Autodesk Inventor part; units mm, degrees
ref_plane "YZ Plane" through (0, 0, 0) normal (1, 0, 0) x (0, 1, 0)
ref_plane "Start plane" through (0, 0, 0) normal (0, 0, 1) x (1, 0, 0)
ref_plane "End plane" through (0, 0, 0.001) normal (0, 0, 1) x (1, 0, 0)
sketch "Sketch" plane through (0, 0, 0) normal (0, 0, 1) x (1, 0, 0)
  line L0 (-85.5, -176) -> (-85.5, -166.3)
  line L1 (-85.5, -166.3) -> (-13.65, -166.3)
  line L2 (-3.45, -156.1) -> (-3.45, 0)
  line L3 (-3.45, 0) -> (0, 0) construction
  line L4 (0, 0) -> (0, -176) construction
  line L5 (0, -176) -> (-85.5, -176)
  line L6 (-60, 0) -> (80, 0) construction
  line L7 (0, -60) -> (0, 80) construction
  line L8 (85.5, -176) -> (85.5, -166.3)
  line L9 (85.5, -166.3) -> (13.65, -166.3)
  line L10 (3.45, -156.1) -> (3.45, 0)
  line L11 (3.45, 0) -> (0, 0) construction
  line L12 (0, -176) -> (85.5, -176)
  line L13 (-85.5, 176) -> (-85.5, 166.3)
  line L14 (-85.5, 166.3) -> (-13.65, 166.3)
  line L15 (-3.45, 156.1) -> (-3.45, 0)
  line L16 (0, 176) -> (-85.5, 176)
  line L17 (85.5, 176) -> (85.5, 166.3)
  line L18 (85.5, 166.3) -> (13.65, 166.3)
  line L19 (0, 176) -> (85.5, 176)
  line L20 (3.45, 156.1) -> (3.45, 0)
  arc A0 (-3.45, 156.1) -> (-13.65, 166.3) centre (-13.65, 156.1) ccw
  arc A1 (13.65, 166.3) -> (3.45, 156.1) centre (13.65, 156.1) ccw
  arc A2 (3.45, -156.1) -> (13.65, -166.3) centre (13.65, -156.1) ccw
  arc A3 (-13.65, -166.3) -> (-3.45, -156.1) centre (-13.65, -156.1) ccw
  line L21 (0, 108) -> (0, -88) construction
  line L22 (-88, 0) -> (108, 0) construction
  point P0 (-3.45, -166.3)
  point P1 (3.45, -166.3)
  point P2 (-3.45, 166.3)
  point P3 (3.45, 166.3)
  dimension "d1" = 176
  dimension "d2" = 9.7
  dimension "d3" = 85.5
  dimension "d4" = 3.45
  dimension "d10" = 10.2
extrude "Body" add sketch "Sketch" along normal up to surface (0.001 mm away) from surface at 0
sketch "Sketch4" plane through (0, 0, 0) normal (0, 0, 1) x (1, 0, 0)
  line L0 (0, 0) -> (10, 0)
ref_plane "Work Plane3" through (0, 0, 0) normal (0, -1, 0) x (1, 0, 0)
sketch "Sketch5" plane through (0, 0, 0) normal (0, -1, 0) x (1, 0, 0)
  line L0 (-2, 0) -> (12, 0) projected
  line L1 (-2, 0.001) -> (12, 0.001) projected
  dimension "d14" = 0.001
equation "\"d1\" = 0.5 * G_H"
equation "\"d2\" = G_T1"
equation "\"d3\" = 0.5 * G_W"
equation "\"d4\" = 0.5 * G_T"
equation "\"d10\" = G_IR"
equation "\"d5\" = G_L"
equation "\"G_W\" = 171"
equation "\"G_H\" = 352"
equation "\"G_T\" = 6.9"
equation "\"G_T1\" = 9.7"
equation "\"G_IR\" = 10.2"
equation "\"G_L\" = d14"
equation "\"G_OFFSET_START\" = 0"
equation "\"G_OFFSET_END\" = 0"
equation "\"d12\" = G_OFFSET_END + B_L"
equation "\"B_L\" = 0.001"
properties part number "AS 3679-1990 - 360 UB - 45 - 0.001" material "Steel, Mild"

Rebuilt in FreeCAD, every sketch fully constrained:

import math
import FreeCAD as App
import Part
import Sketcher

V = App.Vector

doc = App.newDocument("Part")
body = doc.addObject("PartDesign::Body", "Body")

# Sketch on XY plane
sketch1 = body.newObject("Sketcher::SketchObject", "Sketch")
sketch1.AttachmentSupport = (doc.getObject("XY_Plane"), [""])
sketch1.MapMode = "FlatFace"
sketch1.addGeometry(Part.LineSegment(V(-85.5, -166.3, 0), V(-85.5, -176, 0)), False)
sketch1.addGeometry(Part.LineSegment(V(-85.5, -176, 0), V(85.5, -176, 0)), False)
sketch1.addGeometry(Part.LineSegment(V(85.5, -176, 0), V(85.5, -166.3, 0)), False)
sketch1.addGeometry(Part.LineSegment(V(85.5, -166.3, 0), V(13.65, -166.3, 0)), False)
sketch1.addGeometry(Part.ArcOfCircle(Part.Circle(V(13.65, -156.1, 0), V(0, 0, 1), 10.2), math.radians(180), math.radians(270)), False)
sketch1.addGeometry(Part.LineSegment(V(3.45, -156.1, 0), V(3.45, 156.1, 0)), False)
sketch1.addGeometry(Part.ArcOfCircle(Part.Circle(V(13.65, 156.1, 0), V(0, 0, 1), 10.2), math.radians(90), math.radians(180)), False)
sketch1.addGeometry(Part.LineSegment(V(13.65, 166.3, 0), V(85.5, 166.3, 0)), False)
sketch1.addGeometry(Part.LineSegment(V(85.5, 166.3, 0), V(85.5, 176, 0)), False)
sketch1.addGeometry(Part.LineSegment(V(85.5, 176, 0), V(-85.5, 176, 0)), False)
sketch1.addGeometry(Part.LineSegment(V(-85.5, 176, 0), V(-85.5, 166.3, 0)), False)
sketch1.addGeometry(Part.LineSegment(V(-85.5, 166.3, 0), V(-13.65, 166.3, 0)), False)
sketch1.addGeometry(Part.ArcOfCircle(Part.Circle(V(-13.65, 156.1, 0), V(0, 0, 1), 10.2), math.radians(0), math.radians(90)), False)
sketch1.addGeometry(Part.LineSegment(V(-3.45, 156.1, 0), V(-3.45, -156.1, 0)), False)
sketch1.addGeometry(Part.ArcOfCircle(Part.Circle(V(-13.65, -156.1, 0), V(0, 0, 1), 10.2), math.radians(-90), math.radians(0)), False)
sketch1.addGeometry(Part.LineSegment(V(-13.65, -166.3, 0), V(-85.5, -166.3, 0)), False)
sketch1.addConstraint(Sketcher.Constraint("Coincident", 0, 2, 1, 1))
sketch1.addConstraint(Sketcher.Constraint("Coincident", 1, 2, 2, 1))
sketch1.addConstraint(Sketcher.Constraint("Coincident", 2, 2, 3, 1))
sketch1.addConstraint(Sketcher.Constraint("Tangent", 3, 2, 4, 2))
sketch1.addConstraint(Sketcher.Constraint("Tangent", 4, 1, 5, 1))
sketch1.addConstraint(Sketcher.Constraint("Tangent", 5, 2, 6, 2))
sketch1.addConstraint(Sketcher.Constraint("Tangent", 6, 1, 7, 1))
sketch1.addConstraint(Sketcher.Constraint("Coincident", 7, 2, 8, 1))
sketch1.addConstraint(Sketcher.Constraint("Coincident", 8, 2, 9, 1))
sketch1.addConstraint(Sketcher.Constraint("Coincident", 9, 2, 10, 1))
sketch1.addConstraint(Sketcher.Constraint("Coincident", 10, 2, 11, 1))
sketch1.addConstraint(Sketcher.Constraint("Tangent", 11, 2, 12, 2))
sketch1.addConstraint(Sketcher.Constraint("Tangent", 12, 1, 13, 1))
sketch1.addConstraint(Sketcher.Constraint("Tangent", 13, 2, 14, 2))
sketch1.addConstraint(Sketcher.Constraint("Tangent", 14, 1, 15, 1))
sketch1.addConstraint(Sketcher.Constraint("Coincident", 15, 2, 0, 1))
sketch1.addConstraint(Sketcher.Constraint("Vertical", 0))
sketch1.addConstraint(Sketcher.Constraint("Horizontal", 1))
sketch1.addConstraint(Sketcher.Constraint("Vertical", 2))
sketch1.addConstraint(Sketcher.Constraint("Horizontal", 3))
sketch1.addConstraint(Sketcher.Constraint("Vertical", 5))
sketch1.addConstraint(Sketcher.Constraint("Horizontal", 7))
sketch1.addConstraint(Sketcher.Constraint("Vertical", 8))
sketch1.addConstraint(Sketcher.Constraint("Horizontal", 9))
sketch1.addConstraint(Sketcher.Constraint("Vertical", 10))
sketch1.addConstraint(Sketcher.Constraint("Horizontal", 11))
sketch1.addConstraint(Sketcher.Constraint("Vertical", 13))
sketch1.addConstraint(Sketcher.Constraint("Horizontal", 15))
sketch1.addConstraint(Sketcher.Constraint("Equal", 4, 6))
sketch1.addConstraint(Sketcher.Constraint("Equal", 6, 12))
sketch1.addConstraint(Sketcher.Constraint("Equal", 12, 14))
sketch1.addConstraint(Sketcher.Constraint("Symmetric", 4, 3, 12, 3, -1, 1))
sketch1.addConstraint(Sketcher.Constraint("Symmetric", 0, 2, 8, 2, -1, 1))
sketch1.addConstraint(Sketcher.Constraint("Symmetric", 7, 2, 10, 2, -2))
sketch1.addConstraint(Sketcher.Constraint("Symmetric", 2, 2, 15, 2, -2))
sketch1.addConstraint(Sketcher.Constraint("Radius", 4, 10.2))
sketch1.addConstraint(Sketcher.Constraint("DistanceY", 0, 2, 0, 1, 9.7))
sketch1.addConstraint(Sketcher.Constraint("DistanceY", 0, 2, -1, 1, 176.0))
sketch1.addConstraint(Sketcher.Constraint("DistanceX", 0, 2, -1, 1, 85.5))
sketch1.addConstraint(Sketcher.Constraint("DistanceX", -1, 1, 4, 1, 3.45))
pad1 = body.newObject("PartDesign::Pad", "Pad")
pad1.Profile = sketch1
pad1.Length = 0.001

doc.recompute()
